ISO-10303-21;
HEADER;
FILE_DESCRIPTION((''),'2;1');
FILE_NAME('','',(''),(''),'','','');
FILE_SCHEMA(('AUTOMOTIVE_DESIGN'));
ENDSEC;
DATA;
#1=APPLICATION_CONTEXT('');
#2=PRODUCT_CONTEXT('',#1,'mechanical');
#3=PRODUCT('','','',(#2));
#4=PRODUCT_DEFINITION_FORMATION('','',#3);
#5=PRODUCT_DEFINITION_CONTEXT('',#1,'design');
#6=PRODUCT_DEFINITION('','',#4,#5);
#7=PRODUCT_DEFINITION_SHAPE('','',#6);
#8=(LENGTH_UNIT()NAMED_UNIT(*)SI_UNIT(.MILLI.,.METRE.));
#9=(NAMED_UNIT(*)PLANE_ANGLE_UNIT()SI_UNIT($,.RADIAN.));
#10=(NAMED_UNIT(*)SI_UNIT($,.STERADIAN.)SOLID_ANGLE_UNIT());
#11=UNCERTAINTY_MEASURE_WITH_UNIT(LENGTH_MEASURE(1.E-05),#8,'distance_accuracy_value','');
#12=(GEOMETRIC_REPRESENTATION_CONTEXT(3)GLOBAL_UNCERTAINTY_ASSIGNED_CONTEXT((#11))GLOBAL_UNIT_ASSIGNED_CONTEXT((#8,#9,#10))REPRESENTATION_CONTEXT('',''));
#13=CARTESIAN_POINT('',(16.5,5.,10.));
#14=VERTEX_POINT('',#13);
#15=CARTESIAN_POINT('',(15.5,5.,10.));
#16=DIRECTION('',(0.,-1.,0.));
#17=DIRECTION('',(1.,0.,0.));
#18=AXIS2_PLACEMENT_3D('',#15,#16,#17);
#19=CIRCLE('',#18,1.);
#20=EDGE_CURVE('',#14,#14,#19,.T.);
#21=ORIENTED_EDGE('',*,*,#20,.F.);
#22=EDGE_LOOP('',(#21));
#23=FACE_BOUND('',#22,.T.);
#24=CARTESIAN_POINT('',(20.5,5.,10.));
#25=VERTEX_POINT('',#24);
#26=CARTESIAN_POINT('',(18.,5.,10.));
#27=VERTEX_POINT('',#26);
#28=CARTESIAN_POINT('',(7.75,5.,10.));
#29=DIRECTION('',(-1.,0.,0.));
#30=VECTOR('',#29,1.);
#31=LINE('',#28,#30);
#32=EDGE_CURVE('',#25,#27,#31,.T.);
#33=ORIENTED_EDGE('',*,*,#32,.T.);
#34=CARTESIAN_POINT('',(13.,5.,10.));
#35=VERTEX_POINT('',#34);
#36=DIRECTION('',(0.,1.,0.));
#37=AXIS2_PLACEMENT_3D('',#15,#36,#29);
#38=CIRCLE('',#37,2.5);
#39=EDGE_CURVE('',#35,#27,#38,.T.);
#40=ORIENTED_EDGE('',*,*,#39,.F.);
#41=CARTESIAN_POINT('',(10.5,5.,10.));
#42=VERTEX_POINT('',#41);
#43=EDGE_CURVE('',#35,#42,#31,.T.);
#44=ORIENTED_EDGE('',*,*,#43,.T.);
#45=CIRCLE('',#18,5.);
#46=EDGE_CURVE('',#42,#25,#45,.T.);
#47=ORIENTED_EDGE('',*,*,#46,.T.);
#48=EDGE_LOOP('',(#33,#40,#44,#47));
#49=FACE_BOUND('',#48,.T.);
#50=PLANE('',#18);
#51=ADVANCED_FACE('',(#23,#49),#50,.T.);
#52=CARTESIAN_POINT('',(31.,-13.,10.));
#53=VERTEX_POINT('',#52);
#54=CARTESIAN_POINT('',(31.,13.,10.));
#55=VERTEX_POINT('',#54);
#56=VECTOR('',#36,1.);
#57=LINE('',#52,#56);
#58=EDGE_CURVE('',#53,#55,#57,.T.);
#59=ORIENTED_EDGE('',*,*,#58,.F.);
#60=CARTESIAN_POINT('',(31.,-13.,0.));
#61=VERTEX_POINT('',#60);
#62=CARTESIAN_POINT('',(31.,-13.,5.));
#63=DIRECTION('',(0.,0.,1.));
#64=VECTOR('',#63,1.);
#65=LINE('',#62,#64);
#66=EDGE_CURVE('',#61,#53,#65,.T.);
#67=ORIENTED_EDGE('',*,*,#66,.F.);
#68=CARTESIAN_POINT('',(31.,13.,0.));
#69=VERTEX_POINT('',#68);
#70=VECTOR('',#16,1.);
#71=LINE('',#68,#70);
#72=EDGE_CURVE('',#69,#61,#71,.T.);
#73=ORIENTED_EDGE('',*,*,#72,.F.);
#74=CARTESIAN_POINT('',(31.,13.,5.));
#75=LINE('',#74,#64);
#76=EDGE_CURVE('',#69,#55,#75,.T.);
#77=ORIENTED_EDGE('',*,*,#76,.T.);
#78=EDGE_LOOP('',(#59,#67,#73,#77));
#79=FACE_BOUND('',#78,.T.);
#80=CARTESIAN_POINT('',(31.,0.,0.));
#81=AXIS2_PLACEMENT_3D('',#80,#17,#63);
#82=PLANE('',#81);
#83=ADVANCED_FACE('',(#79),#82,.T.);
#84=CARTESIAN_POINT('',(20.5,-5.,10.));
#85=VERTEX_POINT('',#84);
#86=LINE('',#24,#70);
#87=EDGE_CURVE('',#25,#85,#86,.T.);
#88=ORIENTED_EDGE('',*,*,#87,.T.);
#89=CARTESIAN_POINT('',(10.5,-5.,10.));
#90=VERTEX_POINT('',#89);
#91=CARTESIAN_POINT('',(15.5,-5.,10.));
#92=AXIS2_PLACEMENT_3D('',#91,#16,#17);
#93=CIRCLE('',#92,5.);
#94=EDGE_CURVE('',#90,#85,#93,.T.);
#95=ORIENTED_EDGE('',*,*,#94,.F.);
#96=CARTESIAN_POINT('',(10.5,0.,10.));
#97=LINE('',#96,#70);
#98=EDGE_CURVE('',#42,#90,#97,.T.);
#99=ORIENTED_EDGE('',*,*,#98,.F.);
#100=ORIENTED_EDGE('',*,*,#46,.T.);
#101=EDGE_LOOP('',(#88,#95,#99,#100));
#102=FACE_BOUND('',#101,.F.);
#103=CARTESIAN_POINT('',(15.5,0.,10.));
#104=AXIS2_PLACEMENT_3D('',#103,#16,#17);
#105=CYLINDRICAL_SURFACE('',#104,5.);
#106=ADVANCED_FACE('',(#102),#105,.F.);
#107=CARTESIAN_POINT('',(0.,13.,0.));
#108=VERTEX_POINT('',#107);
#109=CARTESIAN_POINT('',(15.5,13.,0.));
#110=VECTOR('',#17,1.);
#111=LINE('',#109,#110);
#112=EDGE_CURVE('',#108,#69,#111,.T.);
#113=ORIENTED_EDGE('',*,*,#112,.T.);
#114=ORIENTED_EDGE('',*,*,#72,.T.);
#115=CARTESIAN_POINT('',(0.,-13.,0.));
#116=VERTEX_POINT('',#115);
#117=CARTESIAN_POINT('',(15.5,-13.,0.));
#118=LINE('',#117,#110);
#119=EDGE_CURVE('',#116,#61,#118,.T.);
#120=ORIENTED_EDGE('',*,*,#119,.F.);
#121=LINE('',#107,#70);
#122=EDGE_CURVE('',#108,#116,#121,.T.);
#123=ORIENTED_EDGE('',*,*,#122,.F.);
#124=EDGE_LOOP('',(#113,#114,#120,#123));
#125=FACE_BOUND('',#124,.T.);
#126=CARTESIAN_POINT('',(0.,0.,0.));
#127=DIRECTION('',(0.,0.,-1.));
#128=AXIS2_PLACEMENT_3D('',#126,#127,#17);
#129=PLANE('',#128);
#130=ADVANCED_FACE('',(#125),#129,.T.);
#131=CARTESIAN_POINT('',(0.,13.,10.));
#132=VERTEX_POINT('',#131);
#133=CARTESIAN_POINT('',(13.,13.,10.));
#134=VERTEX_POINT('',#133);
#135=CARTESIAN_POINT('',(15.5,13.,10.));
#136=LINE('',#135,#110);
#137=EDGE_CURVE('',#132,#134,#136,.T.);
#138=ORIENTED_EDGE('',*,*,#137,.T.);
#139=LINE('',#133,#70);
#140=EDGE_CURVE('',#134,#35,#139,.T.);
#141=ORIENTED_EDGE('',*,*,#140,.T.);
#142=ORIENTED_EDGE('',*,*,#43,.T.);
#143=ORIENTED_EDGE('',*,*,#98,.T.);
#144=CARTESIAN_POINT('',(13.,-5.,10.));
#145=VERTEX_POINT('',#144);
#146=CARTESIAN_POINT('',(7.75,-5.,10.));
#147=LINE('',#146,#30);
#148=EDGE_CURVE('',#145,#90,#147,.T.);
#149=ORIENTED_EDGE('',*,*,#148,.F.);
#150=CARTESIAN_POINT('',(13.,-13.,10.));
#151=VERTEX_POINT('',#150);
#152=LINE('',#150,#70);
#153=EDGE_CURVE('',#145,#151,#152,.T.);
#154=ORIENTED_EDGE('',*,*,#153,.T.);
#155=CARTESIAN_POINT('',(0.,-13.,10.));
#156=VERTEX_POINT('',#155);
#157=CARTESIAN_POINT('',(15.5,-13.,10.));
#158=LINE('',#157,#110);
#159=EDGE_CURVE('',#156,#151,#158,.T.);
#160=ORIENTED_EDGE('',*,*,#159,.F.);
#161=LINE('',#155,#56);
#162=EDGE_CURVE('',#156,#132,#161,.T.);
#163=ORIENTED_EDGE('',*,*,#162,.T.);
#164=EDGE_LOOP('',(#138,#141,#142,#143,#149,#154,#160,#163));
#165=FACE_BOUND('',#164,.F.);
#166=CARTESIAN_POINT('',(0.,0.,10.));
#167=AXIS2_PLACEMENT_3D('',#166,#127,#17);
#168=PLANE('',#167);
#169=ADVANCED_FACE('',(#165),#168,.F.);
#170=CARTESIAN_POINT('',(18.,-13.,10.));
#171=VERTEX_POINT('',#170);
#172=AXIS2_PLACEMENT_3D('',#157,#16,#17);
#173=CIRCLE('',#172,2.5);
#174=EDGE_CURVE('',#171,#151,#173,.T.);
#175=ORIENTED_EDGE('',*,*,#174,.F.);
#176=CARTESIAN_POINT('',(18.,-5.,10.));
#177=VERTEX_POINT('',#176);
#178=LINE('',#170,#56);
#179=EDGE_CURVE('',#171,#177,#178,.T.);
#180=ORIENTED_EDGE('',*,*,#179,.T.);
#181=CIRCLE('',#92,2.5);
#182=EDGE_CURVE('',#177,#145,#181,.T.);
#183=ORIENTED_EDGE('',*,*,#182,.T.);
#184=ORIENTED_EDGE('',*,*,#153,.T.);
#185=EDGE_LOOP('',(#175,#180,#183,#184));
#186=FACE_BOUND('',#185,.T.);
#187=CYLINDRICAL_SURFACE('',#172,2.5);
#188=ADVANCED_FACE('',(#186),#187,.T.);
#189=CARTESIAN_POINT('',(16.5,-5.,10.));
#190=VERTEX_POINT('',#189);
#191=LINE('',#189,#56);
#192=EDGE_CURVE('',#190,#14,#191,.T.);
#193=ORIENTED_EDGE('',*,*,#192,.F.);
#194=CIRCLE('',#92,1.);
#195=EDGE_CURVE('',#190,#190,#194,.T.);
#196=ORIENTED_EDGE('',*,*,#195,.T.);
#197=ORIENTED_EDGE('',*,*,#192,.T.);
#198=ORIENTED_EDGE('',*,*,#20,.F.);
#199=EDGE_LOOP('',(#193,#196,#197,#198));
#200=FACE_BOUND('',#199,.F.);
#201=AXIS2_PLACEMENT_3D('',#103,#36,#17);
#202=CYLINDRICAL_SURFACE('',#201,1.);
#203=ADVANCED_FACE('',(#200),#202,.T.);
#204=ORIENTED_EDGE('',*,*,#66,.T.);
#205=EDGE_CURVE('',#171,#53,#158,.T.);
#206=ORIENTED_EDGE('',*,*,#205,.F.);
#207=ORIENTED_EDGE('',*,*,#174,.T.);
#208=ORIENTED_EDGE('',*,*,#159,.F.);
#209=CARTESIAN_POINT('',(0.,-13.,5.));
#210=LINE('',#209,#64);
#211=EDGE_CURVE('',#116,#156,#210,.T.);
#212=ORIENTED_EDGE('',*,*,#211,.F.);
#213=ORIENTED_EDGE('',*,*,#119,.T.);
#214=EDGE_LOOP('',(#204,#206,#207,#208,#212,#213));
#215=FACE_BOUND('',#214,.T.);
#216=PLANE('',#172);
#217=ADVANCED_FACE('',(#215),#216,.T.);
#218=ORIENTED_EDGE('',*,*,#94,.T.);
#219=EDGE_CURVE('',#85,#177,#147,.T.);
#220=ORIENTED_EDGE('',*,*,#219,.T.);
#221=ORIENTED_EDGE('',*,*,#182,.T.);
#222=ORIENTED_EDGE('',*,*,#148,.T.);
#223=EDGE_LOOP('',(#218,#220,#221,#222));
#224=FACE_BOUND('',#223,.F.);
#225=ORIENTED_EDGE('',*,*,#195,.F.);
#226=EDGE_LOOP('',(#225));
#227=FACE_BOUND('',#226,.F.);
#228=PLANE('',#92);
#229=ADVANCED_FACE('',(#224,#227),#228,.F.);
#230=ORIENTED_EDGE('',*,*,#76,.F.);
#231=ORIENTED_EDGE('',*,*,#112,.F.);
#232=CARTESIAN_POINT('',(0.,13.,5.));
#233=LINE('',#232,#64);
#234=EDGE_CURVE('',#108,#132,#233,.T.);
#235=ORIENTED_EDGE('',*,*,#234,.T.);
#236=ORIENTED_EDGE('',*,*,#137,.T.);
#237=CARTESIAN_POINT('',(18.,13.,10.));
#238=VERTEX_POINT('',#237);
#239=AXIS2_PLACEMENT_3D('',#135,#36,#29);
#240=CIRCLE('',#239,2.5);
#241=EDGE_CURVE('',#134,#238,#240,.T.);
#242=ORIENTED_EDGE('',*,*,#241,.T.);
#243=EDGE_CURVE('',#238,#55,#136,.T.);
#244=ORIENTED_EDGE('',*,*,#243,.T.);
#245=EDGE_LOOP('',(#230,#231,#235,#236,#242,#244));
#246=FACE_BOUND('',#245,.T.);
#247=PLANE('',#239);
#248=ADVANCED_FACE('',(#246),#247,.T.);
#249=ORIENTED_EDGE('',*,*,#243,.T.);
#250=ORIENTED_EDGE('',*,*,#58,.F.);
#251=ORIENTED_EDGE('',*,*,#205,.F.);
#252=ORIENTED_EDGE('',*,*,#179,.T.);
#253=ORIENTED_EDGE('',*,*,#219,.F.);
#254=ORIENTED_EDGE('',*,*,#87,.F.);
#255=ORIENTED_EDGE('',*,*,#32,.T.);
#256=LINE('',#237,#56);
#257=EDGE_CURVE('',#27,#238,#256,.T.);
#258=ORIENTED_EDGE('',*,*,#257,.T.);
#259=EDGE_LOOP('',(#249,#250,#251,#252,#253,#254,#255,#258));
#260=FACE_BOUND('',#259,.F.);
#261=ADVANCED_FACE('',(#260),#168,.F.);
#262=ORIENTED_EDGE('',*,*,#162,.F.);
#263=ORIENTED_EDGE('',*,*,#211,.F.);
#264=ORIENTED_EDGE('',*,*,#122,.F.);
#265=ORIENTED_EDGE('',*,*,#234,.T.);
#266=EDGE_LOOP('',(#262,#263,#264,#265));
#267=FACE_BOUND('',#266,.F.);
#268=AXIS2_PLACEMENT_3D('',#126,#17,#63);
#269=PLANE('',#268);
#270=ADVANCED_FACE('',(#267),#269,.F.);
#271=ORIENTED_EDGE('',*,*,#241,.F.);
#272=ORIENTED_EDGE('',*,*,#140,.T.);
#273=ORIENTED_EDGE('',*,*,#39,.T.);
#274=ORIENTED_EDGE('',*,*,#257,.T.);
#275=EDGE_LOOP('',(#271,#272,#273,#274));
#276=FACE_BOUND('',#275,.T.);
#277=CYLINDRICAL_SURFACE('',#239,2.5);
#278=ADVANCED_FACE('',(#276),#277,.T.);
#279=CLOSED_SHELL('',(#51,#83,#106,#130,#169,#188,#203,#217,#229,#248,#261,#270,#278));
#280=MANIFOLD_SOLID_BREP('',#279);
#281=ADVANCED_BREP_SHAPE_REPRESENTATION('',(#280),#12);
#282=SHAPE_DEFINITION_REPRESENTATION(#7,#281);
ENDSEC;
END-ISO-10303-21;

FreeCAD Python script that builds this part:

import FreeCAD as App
import Part
import Sketcher
Q = App.Units.Quantity

doc = App.newDocument("Part")
body = doc.addObject("PartDesign::Body", "Body")

sketch1 = body.newObject("Sketcher::SketchObject", "Sketch")
sketch1.AttachmentSupport = (doc.getObject("XZ_Plane"), [""])
sketch1.MapMode = "FlatFace"
sketch1.addGeometry([
    Part.LineSegment(App.Vector(0, 10, 0), App.Vector(0, 0, 0)),
    Part.LineSegment(App.Vector(0, 0, 0), App.Vector(31, 0, 0)),
    Part.LineSegment(App.Vector(31, 0, 0), App.Vector(31, 10, 0)),
    Part.LineSegment(App.Vector(31, 10, 0), App.Vector(0, 10, 0)),
], False)
sketch1.addConstraint([
    Sketcher.Constraint("Coincident", 0, 2, 1, 1),
    Sketcher.Constraint("Coincident", 1, 2, 2, 1),
    Sketcher.Constraint("Coincident", 2, 2, 3, 1),
    Sketcher.Constraint("Coincident", 3, 2, 0, 1),
    Sketcher.Constraint("Vertical", 0),
    Sketcher.Constraint("Horizontal", 1),
    Sketcher.Constraint("Vertical", 2),
    Sketcher.Constraint("Horizontal", 3),
    Sketcher.Constraint("Coincident", 0, 2, -1, 1),
    Sketcher.Constraint("DistanceX", 1, 1, 1, 2, Q("31 mm")),
    Sketcher.Constraint("DistanceY", 0, 2, 0, 1, Q("10 mm")),
])
pad1 = body.newObject("PartDesign::Pad", "Pad")
pad1.Profile = sketch1
pad1.Length = 26
pad1.Midplane = True

sketch2 = body.newObject("Sketcher::SketchObject", "Sketch001")
sketch2.AttachmentSupport = (doc.getObject("XZ_Plane"), [""])
sketch2.MapMode = "FlatFace"
sketch2.AttachmentOffset = App.Placement(App.Vector(0, 0, 13), App.Rotation())
sketch2.addGeometry(Part.Circle(App.Vector(15.5, 10, 0), App.Vector(0, 0, 1), 1), False)
sketch2.addConstraint([
    Sketcher.Constraint("Diameter", 0, Q("2 mm")),
    Sketcher.Constraint("DistanceY", -1, 1, 0, 3, Q("10 mm")),
    Sketcher.Constraint("DistanceX", -1, 1, 0, 3, Q("15.5 mm")),
])
pad2 = body.newObject("PartDesign::Pad", "Pad001")
pad2.Profile = sketch2
pad2.Length = 20
pad2.Reversed = True

sketch3 = body.newObject("Sketcher::SketchObject", "Sketch002")
sketch3.AttachmentSupport = (doc.getObject("XZ_Plane"), [""])
sketch3.MapMode = "FlatFace"
sketch3.AttachmentOffset = App.Placement(App.Vector(0, 0, 13), App.Rotation())
sketch3.addGeometry(Part.Circle(App.Vector(15.5, 10, 0), App.Vector(0, 0, 1), 2.5), False)
sketch3.addConstraint([
    Sketcher.Constraint("Diameter", 0, Q("5 mm")),
    Sketcher.Constraint("DistanceY", -1, 1, 0, 3, Q("10 mm")),
    Sketcher.Constraint("DistanceX", -1, 1, 0, 3, Q("15.5 mm")),
])
pad3 = body.newObject("PartDesign::Pad", "Pad002")
pad3.Profile = sketch3
pad3.Length = 10
pad3.Reversed = True

sketch4 = body.newObject("Sketcher::SketchObject", "Sketch003")
sketch4.AttachmentSupport = (doc.getObject("XZ_Plane"), [""])
sketch4.MapMode = "FlatFace"
sketch4.AttachmentOffset = App.Placement(App.Vector(0, 0, -13), App.Rotation())
sketch4.addGeometry(Part.Circle(App.Vector(15.5, 10, 0), App.Vector(0, 0, 1), 2.5), False)
sketch4.addConstraint([
    Sketcher.Constraint("Diameter", 0, Q("5 mm")),
    Sketcher.Constraint("DistanceY", -1, 1, 0, 3, Q("10 mm")),
    Sketcher.Constraint("DistanceX", -1, 1, 0, 3, Q("15.5 mm")),
])
pad4 = body.newObject("PartDesign::Pad", "Pad003")
pad4.Profile = sketch4
pad4.Length = 10

sketch5 = body.newObject("Sketcher::SketchObject", "Sketch004")
sketch5.AttachmentSupport = (doc.getObject("XZ_Plane"), [""])
sketch5.MapMode = "FlatFace"
sketch5.addGeometry([
    Part.Circle(App.Vector(15.5, 10, 0), App.Vector(0, 0, 1), 5),
    Part.Circle(App.Vector(15.5, 10, 0), App.Vector(0, 0, 1), 1),
], False)
sketch5.addConstraint([
    Sketcher.Constraint("Coincident", 1, 3, 0, 3),
    Sketcher.Constraint("Diameter", 0, Q("10 mm")),
    Sketcher.Constraint("Diameter", 1, Q("2 mm")),
    Sketcher.Constraint("DistanceY", -1, 1, 0, 3, Q("10 mm")),
    Sketcher.Constraint("DistanceX", -1, 1, 0, 3, Q("15.5 mm")),
])
pocket1 = body.newObject("PartDesign::Pocket", "Pocket")
pocket1.Profile = sketch5
pocket1.Length = 10
pocket1.Midplane = True

doc.recompute()
